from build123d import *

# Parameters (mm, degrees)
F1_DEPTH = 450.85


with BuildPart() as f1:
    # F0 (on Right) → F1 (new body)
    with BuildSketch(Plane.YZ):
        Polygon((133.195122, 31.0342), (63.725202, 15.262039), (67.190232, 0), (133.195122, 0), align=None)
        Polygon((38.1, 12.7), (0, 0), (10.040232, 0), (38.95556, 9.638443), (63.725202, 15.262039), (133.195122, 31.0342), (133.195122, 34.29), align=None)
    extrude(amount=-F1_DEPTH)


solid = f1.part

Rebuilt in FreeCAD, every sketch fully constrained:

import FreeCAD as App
import Part
import Sketcher
Q = App.Units.Quantity

doc = App.newDocument("Part")
body = doc.addObject("PartDesign::Body", "Body")

# Sketch on YZ plane
sketch1 = body.newObject("Sketcher::SketchObject", "Sketch")
sketch1.AttachmentSupport = (doc.getObject("YZ_Plane"), [""])
sketch1.MapMode = "FlatFace"
sketch1.addGeometry([
    Part.LineSegment(App.Vector(63.725202, 15.262039, 0), App.Vector(67.190232, 0, 0)),  # 0
    Part.LineSegment(App.Vector(67.190232, 0, 0), App.Vector(133.195122, 0, 0)),  # 1
    Part.LineSegment(App.Vector(133.195122, 0, 0), App.Vector(133.195122, 34.29, 0)),  # 2
    Part.LineSegment(App.Vector(133.195122, 34.29, 0), App.Vector(38.1, 12.7, 0)),  # 3
    Part.LineSegment(App.Vector(38.1, 12.7, 0), App.Vector(0, 0, 0)),  # 4
    Part.LineSegment(App.Vector(0, 0, 0), App.Vector(10.040232, 0, 0)),  # 5
    Part.LineSegment(App.Vector(10.040232, 0, 0), App.Vector(38.95556, 9.638443, 0)),  # 6
    Part.LineSegment(App.Vector(38.95556, 9.638443, 0), App.Vector(63.725202, 15.262039, 0)),  # 7
], False)
sketch1.addConstraint([
    Sketcher.Constraint("Coincident", 0, 2, 1, 1),
    Sketcher.Constraint("Coincident", 1, 2, 2, 1),
    Sketcher.Constraint("Coincident", 2, 2, 3, 1),
    Sketcher.Constraint("Coincident", 3, 2, 4, 1),
    Sketcher.Constraint("Coincident", 4, 2, 5, 1),
    Sketcher.Constraint("Coincident", 5, 2, 6, 1),
    Sketcher.Constraint("Coincident", 6, 2, 7, 1),
    Sketcher.Constraint("Coincident", 7, 2, 0, 1),
    Sketcher.Constraint("Horizontal", 1),
    Sketcher.Constraint("Vertical", 2),
    Sketcher.Constraint("Horizontal", 5),
    Sketcher.Constraint("Coincident", 4, 2, -1, 1),
    Sketcher.Constraint("PointOnObject", 0, 2, -1),
    Sketcher.Constraint("Perpendicular", 0, 3),
    Sketcher.Constraint("Parallel", 4, 6),
    Sketcher.Constraint("Parallel", 3, 7),
    Sketcher.Constraint("Distance", 7, Q("1 in")),
    Sketcher.Constraint("DistanceY", 2, 1, 2, 2, Q("1.35 in")),
    Sketcher.Constraint("DistanceX", -1, 1, 3, 2, Q("1.5 in")),
    Sketcher.Constraint("DistanceY", -1, 1, 3, 2, Q("0.5 in")),
    Sketcher.Constraint("DistanceX", 5, 2, 0, 2, Q("2.25 in")),
    Sketcher.Constraint("DistanceX", 1, 1, 1, 2, 66.00489),
    Sketcher.Constraint("Distance", 0, 15.65044),
])
pad1 = body.newObject("PartDesign::Pad", "Pad")
pad1.Profile = sketch1
pad1.Length = Q("17.75 in")
pad1.Reversed = True

doc.recompute()
